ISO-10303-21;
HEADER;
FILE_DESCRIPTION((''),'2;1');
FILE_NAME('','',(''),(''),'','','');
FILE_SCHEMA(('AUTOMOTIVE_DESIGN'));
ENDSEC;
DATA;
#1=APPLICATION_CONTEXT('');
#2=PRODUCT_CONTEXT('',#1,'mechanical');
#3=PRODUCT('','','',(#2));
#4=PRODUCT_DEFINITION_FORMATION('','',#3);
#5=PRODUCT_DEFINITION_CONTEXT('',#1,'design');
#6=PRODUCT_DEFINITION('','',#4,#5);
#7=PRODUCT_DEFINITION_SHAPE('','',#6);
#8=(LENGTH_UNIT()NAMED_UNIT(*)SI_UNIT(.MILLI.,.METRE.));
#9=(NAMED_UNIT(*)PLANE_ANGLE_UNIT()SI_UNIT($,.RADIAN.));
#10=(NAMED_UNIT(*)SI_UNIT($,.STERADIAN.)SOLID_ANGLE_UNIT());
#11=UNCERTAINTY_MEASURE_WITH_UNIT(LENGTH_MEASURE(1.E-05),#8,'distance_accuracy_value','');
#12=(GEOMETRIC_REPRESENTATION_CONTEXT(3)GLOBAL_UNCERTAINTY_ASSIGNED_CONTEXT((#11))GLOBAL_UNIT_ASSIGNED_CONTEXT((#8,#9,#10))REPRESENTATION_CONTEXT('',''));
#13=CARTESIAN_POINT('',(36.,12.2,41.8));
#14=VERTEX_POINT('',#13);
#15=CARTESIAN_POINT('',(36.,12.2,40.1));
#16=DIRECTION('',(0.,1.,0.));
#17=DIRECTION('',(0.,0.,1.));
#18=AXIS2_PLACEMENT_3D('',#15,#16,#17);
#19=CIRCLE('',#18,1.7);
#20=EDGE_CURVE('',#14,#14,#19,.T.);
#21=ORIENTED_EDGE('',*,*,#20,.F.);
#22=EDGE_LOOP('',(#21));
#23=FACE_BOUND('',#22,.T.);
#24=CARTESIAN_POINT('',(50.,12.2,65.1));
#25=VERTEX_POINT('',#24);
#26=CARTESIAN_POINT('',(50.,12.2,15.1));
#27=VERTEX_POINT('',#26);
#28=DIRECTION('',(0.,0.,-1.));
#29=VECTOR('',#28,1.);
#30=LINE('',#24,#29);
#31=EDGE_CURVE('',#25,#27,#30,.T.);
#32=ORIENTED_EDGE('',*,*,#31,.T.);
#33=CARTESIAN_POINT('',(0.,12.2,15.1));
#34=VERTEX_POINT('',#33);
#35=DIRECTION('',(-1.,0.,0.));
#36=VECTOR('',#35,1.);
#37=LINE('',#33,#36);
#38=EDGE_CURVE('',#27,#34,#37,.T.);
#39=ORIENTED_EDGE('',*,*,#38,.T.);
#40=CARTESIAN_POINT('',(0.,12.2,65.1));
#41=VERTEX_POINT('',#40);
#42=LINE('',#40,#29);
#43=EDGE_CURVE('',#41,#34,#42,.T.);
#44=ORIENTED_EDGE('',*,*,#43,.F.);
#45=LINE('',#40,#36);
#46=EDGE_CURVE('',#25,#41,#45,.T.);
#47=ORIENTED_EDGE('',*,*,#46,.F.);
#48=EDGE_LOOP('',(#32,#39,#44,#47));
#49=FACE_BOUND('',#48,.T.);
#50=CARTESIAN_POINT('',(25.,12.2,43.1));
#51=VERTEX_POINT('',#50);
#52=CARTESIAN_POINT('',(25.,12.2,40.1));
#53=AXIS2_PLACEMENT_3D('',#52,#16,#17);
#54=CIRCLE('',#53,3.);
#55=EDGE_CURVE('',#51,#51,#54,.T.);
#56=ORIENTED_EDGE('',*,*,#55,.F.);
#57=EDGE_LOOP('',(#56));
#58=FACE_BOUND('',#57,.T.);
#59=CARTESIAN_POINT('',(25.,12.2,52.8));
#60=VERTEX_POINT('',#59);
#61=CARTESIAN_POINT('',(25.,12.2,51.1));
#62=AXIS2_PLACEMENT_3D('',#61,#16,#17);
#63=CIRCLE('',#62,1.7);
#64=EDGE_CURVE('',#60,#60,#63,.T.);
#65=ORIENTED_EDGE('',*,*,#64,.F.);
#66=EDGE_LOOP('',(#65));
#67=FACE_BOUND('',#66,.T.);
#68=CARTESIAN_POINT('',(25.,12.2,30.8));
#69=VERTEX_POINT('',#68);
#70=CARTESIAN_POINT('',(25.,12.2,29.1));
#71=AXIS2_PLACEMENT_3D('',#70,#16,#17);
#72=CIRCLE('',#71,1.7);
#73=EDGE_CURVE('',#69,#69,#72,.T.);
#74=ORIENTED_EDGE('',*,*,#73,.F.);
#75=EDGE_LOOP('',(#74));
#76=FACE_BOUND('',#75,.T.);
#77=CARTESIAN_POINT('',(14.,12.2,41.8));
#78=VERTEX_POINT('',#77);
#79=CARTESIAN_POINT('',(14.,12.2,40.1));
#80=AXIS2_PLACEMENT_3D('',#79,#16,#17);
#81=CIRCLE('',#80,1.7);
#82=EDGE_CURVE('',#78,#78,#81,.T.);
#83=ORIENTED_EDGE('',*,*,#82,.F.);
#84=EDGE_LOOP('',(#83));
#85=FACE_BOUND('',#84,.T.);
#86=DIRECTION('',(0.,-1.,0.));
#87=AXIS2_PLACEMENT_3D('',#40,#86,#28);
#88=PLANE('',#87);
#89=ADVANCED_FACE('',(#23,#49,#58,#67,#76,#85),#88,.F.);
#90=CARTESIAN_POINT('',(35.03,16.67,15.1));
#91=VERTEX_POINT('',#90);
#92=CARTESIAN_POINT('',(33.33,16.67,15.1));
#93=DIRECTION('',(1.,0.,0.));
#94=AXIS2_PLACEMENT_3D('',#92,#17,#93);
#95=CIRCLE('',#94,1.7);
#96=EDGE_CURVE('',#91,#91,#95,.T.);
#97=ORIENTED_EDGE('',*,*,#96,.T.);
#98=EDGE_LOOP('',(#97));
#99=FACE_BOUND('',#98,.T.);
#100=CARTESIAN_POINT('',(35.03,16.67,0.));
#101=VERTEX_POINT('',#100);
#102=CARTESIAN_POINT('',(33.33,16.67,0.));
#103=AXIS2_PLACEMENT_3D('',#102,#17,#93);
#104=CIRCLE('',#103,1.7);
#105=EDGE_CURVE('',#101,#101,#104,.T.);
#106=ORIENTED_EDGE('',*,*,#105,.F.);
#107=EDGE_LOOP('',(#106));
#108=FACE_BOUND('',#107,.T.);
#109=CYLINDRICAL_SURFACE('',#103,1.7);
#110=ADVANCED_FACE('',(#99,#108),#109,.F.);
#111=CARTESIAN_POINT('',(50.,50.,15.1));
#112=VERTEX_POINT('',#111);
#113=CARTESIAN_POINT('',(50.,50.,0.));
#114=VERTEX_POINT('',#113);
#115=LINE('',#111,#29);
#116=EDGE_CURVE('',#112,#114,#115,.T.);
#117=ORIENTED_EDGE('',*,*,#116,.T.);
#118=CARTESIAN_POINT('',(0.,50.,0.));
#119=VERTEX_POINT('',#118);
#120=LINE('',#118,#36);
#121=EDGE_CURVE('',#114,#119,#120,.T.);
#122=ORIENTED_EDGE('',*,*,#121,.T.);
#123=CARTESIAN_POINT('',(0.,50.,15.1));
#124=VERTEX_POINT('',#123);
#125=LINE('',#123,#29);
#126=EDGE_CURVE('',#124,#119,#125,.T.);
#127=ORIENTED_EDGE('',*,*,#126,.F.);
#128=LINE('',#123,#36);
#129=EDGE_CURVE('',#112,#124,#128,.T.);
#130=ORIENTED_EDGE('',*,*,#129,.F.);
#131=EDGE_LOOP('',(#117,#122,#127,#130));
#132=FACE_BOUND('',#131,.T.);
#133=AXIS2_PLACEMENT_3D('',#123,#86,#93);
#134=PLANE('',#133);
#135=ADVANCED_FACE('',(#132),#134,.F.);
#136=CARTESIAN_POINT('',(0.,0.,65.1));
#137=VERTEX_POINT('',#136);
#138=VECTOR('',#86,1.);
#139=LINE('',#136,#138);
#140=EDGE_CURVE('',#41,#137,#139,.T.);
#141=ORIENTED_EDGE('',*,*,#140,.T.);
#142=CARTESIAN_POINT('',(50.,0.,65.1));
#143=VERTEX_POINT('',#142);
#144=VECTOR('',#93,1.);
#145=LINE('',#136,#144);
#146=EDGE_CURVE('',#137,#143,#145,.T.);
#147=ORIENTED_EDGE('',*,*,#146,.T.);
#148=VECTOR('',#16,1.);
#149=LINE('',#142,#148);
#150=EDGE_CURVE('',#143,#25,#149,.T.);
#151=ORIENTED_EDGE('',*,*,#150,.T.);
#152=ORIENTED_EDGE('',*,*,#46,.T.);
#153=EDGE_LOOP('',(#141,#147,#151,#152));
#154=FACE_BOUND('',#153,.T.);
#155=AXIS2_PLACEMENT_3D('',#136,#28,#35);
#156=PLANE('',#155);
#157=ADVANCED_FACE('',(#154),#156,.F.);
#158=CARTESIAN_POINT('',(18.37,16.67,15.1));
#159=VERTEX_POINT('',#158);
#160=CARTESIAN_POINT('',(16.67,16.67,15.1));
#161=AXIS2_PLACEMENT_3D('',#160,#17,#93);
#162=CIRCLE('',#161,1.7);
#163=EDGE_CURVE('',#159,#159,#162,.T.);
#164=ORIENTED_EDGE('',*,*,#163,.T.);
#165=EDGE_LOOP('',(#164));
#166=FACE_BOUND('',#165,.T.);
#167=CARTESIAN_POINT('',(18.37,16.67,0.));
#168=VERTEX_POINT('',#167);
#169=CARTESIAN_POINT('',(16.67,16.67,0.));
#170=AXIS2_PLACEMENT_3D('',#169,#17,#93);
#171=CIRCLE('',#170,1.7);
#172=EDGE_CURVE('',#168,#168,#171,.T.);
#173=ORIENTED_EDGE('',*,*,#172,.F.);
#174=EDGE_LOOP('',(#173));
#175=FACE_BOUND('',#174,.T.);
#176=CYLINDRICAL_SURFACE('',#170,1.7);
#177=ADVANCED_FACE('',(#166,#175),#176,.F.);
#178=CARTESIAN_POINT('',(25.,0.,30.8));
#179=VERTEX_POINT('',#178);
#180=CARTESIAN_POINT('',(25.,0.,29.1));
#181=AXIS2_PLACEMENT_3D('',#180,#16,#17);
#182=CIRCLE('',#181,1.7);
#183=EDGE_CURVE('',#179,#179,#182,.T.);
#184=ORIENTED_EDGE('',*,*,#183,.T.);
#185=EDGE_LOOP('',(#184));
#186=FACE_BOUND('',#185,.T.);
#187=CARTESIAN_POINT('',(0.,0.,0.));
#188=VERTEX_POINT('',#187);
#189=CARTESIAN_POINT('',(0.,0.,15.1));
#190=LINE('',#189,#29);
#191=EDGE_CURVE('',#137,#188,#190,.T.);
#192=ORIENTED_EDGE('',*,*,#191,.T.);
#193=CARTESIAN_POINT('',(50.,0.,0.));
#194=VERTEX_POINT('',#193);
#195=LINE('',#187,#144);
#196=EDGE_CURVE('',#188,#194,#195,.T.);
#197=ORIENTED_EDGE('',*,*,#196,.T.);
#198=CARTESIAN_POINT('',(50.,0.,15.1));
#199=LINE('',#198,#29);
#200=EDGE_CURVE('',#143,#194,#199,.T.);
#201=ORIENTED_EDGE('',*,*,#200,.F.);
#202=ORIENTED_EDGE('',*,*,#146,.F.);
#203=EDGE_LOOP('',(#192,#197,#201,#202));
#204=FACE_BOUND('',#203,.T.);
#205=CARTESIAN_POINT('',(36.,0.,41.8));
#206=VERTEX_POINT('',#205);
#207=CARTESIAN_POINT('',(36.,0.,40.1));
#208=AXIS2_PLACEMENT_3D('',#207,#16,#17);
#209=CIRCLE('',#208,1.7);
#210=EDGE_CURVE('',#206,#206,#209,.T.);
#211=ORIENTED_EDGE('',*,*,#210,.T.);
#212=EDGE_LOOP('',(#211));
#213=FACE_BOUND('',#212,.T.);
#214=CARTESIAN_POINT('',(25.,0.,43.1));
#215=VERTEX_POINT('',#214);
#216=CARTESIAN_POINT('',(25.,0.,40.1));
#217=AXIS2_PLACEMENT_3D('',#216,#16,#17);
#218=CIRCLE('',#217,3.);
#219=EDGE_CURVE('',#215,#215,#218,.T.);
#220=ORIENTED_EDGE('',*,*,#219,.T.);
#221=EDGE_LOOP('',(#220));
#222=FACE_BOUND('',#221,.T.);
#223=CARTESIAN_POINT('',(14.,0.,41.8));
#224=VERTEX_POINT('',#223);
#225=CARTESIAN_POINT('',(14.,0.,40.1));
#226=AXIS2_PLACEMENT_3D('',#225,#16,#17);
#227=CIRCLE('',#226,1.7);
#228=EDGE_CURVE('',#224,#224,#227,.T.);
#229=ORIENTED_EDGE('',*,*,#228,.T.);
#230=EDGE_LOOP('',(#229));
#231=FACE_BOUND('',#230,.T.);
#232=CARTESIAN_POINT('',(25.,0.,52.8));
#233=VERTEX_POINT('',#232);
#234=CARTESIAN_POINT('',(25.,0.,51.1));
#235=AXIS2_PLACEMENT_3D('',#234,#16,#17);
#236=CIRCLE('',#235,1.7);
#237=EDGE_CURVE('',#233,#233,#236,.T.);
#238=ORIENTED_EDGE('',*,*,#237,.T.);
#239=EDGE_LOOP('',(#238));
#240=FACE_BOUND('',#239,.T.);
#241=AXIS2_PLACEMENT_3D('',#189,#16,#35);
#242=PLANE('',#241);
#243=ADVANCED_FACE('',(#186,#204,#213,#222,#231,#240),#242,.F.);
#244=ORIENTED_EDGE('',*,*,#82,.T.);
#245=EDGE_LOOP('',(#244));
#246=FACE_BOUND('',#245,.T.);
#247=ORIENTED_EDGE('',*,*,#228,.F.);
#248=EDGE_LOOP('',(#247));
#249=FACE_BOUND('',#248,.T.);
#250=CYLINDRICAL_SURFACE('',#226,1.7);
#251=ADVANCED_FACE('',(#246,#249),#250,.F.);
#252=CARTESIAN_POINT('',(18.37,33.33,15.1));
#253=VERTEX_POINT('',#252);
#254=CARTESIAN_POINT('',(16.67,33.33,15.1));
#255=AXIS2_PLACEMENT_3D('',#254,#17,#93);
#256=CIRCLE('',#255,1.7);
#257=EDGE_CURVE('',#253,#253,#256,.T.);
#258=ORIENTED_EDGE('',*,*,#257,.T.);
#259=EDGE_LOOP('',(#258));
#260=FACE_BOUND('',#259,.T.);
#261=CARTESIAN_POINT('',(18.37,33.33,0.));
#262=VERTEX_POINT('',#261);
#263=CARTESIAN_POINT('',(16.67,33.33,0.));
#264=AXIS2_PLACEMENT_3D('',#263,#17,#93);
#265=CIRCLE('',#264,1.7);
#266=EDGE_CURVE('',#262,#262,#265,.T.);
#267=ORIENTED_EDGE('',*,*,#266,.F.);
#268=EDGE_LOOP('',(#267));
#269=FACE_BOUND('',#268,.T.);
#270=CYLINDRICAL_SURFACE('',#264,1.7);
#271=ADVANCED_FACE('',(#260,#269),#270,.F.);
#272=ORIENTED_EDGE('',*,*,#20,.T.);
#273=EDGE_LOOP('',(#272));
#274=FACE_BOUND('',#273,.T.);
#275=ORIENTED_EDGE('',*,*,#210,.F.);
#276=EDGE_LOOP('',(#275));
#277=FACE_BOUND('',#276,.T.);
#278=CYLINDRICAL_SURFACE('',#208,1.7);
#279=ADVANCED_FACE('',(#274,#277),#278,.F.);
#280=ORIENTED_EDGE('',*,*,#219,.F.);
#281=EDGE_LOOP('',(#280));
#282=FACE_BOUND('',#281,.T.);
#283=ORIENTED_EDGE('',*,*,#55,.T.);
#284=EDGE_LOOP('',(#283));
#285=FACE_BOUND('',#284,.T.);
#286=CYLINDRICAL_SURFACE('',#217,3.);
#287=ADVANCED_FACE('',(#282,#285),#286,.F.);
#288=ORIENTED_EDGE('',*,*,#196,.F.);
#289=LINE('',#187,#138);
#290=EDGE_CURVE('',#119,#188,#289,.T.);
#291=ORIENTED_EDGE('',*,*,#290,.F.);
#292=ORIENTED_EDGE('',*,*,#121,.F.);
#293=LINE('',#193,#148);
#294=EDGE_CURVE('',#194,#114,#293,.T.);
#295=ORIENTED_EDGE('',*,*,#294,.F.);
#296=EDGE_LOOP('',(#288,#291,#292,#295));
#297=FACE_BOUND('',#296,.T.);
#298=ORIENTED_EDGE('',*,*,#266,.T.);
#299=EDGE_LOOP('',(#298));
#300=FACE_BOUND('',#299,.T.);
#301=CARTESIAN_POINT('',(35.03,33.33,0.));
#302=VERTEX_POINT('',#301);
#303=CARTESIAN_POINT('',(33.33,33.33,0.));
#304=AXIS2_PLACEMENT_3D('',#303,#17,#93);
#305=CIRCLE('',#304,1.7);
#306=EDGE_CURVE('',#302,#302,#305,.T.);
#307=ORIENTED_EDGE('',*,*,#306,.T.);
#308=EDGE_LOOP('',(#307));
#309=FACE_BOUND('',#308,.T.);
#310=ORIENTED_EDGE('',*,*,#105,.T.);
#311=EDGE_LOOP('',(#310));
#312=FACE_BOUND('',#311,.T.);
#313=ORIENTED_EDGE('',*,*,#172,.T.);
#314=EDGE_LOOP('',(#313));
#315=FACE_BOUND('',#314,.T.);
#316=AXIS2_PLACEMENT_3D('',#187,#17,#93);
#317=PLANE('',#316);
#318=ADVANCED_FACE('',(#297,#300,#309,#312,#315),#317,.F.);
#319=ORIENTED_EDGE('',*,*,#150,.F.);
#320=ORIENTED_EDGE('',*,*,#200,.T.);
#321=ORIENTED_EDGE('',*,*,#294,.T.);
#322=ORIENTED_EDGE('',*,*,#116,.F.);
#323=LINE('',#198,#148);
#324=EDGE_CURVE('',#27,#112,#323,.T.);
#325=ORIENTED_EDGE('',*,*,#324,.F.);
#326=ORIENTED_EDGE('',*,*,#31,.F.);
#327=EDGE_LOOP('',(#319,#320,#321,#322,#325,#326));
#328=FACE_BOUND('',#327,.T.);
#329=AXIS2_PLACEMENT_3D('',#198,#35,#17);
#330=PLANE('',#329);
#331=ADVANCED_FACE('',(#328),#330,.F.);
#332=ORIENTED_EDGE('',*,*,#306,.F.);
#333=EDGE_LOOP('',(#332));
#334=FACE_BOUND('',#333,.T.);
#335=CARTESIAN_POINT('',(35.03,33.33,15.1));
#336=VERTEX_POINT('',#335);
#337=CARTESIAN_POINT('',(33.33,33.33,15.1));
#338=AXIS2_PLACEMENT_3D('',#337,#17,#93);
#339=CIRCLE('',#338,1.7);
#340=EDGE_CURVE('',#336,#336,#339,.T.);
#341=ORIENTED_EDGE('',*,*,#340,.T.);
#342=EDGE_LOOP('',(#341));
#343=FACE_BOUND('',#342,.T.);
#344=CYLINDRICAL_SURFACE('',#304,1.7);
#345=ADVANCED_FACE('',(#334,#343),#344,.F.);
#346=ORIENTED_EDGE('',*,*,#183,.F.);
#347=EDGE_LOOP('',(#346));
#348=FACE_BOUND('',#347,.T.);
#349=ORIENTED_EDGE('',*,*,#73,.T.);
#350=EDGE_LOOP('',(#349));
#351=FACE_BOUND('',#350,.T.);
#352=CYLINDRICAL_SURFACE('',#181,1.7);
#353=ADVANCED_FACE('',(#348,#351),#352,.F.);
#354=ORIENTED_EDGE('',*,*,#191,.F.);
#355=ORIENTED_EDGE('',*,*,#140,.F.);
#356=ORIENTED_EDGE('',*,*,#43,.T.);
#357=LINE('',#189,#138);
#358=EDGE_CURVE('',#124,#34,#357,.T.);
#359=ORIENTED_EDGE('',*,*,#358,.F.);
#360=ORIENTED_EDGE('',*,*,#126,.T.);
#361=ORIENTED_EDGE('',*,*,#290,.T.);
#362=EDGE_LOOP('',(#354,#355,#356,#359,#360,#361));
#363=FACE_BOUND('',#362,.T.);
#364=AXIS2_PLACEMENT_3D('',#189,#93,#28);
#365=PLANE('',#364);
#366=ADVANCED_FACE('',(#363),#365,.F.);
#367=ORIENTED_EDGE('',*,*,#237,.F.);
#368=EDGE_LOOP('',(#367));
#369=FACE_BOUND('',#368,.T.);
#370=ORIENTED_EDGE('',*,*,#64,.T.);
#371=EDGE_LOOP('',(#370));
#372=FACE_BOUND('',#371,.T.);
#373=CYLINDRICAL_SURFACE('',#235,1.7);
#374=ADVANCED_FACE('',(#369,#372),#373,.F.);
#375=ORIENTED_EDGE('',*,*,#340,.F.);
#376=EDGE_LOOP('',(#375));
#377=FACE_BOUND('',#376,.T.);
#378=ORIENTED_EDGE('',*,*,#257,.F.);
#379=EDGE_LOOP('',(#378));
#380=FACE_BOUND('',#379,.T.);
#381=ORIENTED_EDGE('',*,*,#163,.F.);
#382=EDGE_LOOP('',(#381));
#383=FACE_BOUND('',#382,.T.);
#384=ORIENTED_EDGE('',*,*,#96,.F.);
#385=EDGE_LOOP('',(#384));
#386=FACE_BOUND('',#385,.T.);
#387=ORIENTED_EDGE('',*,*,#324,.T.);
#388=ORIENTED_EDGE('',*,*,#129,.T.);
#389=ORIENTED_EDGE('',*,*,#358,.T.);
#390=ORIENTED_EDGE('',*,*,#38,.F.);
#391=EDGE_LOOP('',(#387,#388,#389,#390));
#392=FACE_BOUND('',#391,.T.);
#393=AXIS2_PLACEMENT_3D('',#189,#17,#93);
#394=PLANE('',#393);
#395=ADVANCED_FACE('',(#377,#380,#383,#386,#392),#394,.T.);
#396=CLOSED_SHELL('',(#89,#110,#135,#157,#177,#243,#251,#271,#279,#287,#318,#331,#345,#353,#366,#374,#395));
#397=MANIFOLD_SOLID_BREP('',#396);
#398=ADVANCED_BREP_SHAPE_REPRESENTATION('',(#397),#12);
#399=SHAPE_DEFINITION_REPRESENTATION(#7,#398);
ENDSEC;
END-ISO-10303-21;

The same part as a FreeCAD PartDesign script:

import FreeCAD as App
import Part
import Sketcher
from FreeCAD import Vector

doc = App.newDocument("Part")
body = doc.addObject("PartDesign::Body", "Body")

# Sketch on XY plane
sketch1 = body.newObject("Sketcher::SketchObject", "Sketch")
sketch1.AttachmentSupport = (doc.getObject("XY_Plane"), [""])
sketch1.MapMode = "FlatFace"
sketch1.addGeometry(Part.LineSegment(Vector(0, 0, 0), Vector(50, 0, 0)), False)
sketch1.addGeometry(Part.LineSegment(Vector(50, 0, 0), Vector(50, 50, 0)), False)
sketch1.addGeometry(Part.LineSegment(Vector(50, 50, 0), Vector(0, 50, 0)), False)
sketch1.addGeometry(Part.LineSegment(Vector(0, 50, 0), Vector(0, 0, 0)), False)
sketch1.addConstraint(Sketcher.Constraint("Coincident", 0, 2, 1, 1))
sketch1.addConstraint(Sketcher.Constraint("Coincident", 1, 2, 2, 1))
sketch1.addConstraint(Sketcher.Constraint("Coincident", 2, 2, 3, 1))
sketch1.addConstraint(Sketcher.Constraint("Coincident", 3, 2, 0, 1))
sketch1.addConstraint(Sketcher.Constraint("Horizontal", 0))
sketch1.addConstraint(Sketcher.Constraint("Vertical", 1))
sketch1.addConstraint(Sketcher.Constraint("Horizontal", 2))
sketch1.addConstraint(Sketcher.Constraint("Vertical", 3))
sketch1.addConstraint(Sketcher.Constraint("Coincident", 3, 2, -1, 1))
sketch1.addConstraint(Sketcher.Constraint("Equal", 2, 1))
sketch1.addConstraint(Sketcher.Constraint("DistanceX", 0, 1, 0, 2, 50.0))
pad1 = body.newObject("PartDesign::Pad", "Pad")
pad1.Profile = sketch1
pad1.Length = 15.1

# Sketch on XY plane
sketch2 = body.newObject("Sketcher::SketchObject", "Sketch001")
sketch2.AttachmentSupport = (doc.getObject("XY_Plane"), [""])
sketch2.MapMode = "FlatFace"
sketch2.AttachmentOffset = App.Placement(Vector(0, 0, 15.1), App.Rotation())
sketch2.addGeometry(Part.Circle(Vector(16.67, 33.33, 0), Vector(0, 0, 1), 1.7), False)
sketch2.addGeometry(Part.Circle(Vector(33.33, 33.33, 0), Vector(0, 0, 1), 1.7), False)
sketch2.addGeometry(Part.Circle(Vector(16.67, 16.67, 0), Vector(0, 0, 1), 1.7), False)
sketch2.addGeometry(Part.Circle(Vector(33.33, 16.67, 0), Vector(0, 0, 1), 1.7), False)
sketch2.addConstraint(Sketcher.Constraint("Equal", 0, 1))
sketch2.addConstraint(Sketcher.Constraint("Equal", 1, 2))
sketch2.addConstraint(Sketcher.Constraint("Equal", 2, 3))
sketch2.addConstraint(Sketcher.Constraint("Horizontal", 0, 3, 1, 3))
sketch2.addConstraint(Sketcher.Constraint("Horizontal", 2, 3, 3, 3))
sketch2.addConstraint(Sketcher.Constraint("Vertical", 0, 3, 2, 3))
sketch2.addConstraint(Sketcher.Constraint("Vertical", 1, 3, 3, 3))
sketch2.addConstraint(Sketcher.Constraint("Diameter", 0, 3.4))
sketch2.addConstraint(Sketcher.Constraint("DistanceX", -1, 1, 0, 3, 16.67))
sketch2.addConstraint(Sketcher.Constraint("DistanceY", -1, 1, 0, 3, 33.33))
sketch2.addConstraint(Sketcher.Constraint("DistanceX", -1, 1, 1, 3, 33.33))
sketch2.addConstraint(Sketcher.Constraint("DistanceY", -1, 1, 2, 3, 16.67))
pocket1 = body.newObject("PartDesign::Pocket", "Pocket")
pocket1.Profile = sketch2
pocket1.Type = "ThroughAll"

# Sketch on XY plane
sketch3 = body.newObject("Sketcher::SketchObject", "Sketch002")
sketch3.AttachmentSupport = (doc.getObject("XY_Plane"), [""])
sketch3.MapMode = "FlatFace"
sketch3.AttachmentOffset = App.Placement(Vector(0, 0, 15.1), App.Rotation())
sketch3.addGeometry(Part.LineSegment(Vector(0, 12.2, 0), Vector(0, 0, 0)), False)
sketch3.addGeometry(Part.LineSegment(Vector(0, 0, 0), Vector(50, 0, 0)), False)
sketch3.addGeometry(Part.LineSegment(Vector(50, 0, 0), Vector(50, 12.2, 0)), False)
sketch3.addGeometry(Part.LineSegment(Vector(50, 12.2, 0), Vector(0, 12.2, 0)), False)
sketch3.addConstraint(Sketcher.Constraint("Coincident", 0, 2, 1, 1))
sketch3.addConstraint(Sketcher.Constraint("Coincident", 1, 2, 2, 1))
sketch3.addConstraint(Sketcher.Constraint("Coincident", 2, 2, 3, 1))
sketch3.addConstraint(Sketcher.Constraint("Coincident", 3, 2, 0, 1))
sketch3.addConstraint(Sketcher.Constraint("Vertical", 0))
sketch3.addConstraint(Sketcher.Constraint("Horizontal", 1))
sketch3.addConstraint(Sketcher.Constraint("Vertical", 2))
sketch3.addConstraint(Sketcher.Constraint("Horizontal", 3))
sketch3.addConstraint(Sketcher.Constraint("Coincident", 0, 2, -1, 1))
sketch3.addConstraint(Sketcher.Constraint("DistanceX", 1, 1, 1, 2, 50.0))
sketch3.addConstraint(Sketcher.Constraint("DistanceY", 0, 2, 0, 1, 12.2))
pad2 = body.newObject("PartDesign::Pad", "Pad001")
pad2.Profile = sketch3
pad2.Length = 50

# Sketch on XZ plane
sketch4 = body.newObject("Sketcher::SketchObject", "Sketch003")
sketch4.AttachmentSupport = (doc.getObject("XZ_Plane"), [""])
sketch4.MapMode = "FlatFace"
sketch4.AttachmentOffset = App.Placement(Vector(0, 0, -12.2), App.Rotation())
sketch4.addGeometry(Part.Circle(Vector(25, 40.1, 0), Vector(0, 0, 1), 3), False)
sketch4.addGeometry(Part.Circle(Vector(36, 40.1, 0), Vector(0, 0, 1), 1.7), False)
sketch4.addGeometry(Part.Circle(Vector(25, 51.1, 0), Vector(0, 0, 1), 1.7), False)
sketch4.addGeometry(Part.Circle(Vector(14, 40.1, 0), Vector(0, 0, 1), 1.7), False)
sketch4.addGeometry(Part.Circle(Vector(25, 29.1, 0), Vector(0, 0, 1), 1.7), False)
sketch4.addConstraint(Sketcher.Constraint("Equal", 1, 2))
sketch4.addConstraint(Sketcher.Constraint("Equal", 2, 3))
sketch4.addConstraint(Sketcher.Constraint("Equal", 3, 4))
sketch4.addConstraint(Sketcher.Constraint("Horizontal", 0, 3, 1, 3))
sketch4.addConstraint(Sketcher.Constraint("Horizontal", 1, 3, 3, 3))
sketch4.addConstraint(Sketcher.Constraint("Vertical", 0, 3, 2, 3))
sketch4.addConstraint(Sketcher.Constraint("Vertical", 2, 3, 4, 3))
sketch4.addConstraint(Sketcher.Constraint("Diameter", 0, 6.0))
sketch4.addConstraint(Sketcher.Constraint("Diameter", 1, 3.4))
sketch4.addConstraint(Sketcher.Constraint("DistanceX", -1, 1, 0, 3, 25.0))
sketch4.addConstraint(Sketcher.Constraint("DistanceX", -1, 1, 1, 3, 36.0))
sketch4.addConstraint(Sketcher.Constraint("DistanceX", -1, 1, 3, 3, 14.0))
sketch4.addConstraint(Sketcher.Constraint("DistanceY", 0, 3, 2, 3, 11.0))
sketch4.addConstraint(Sketcher.Constraint("DistanceY", 4, 3, 0, 3, 11.0))
sketch4.addConstraint(Sketcher.Constraint("DistanceY", -1, 1, 0, 3, 40.1))
pocket2 = body.newObject("PartDesign::Pocket", "Pocket001")
pocket2.Profile = sketch4
pocket2.Type = "ThroughAll"
pocket2.Reversed = True

doc.recompute()
